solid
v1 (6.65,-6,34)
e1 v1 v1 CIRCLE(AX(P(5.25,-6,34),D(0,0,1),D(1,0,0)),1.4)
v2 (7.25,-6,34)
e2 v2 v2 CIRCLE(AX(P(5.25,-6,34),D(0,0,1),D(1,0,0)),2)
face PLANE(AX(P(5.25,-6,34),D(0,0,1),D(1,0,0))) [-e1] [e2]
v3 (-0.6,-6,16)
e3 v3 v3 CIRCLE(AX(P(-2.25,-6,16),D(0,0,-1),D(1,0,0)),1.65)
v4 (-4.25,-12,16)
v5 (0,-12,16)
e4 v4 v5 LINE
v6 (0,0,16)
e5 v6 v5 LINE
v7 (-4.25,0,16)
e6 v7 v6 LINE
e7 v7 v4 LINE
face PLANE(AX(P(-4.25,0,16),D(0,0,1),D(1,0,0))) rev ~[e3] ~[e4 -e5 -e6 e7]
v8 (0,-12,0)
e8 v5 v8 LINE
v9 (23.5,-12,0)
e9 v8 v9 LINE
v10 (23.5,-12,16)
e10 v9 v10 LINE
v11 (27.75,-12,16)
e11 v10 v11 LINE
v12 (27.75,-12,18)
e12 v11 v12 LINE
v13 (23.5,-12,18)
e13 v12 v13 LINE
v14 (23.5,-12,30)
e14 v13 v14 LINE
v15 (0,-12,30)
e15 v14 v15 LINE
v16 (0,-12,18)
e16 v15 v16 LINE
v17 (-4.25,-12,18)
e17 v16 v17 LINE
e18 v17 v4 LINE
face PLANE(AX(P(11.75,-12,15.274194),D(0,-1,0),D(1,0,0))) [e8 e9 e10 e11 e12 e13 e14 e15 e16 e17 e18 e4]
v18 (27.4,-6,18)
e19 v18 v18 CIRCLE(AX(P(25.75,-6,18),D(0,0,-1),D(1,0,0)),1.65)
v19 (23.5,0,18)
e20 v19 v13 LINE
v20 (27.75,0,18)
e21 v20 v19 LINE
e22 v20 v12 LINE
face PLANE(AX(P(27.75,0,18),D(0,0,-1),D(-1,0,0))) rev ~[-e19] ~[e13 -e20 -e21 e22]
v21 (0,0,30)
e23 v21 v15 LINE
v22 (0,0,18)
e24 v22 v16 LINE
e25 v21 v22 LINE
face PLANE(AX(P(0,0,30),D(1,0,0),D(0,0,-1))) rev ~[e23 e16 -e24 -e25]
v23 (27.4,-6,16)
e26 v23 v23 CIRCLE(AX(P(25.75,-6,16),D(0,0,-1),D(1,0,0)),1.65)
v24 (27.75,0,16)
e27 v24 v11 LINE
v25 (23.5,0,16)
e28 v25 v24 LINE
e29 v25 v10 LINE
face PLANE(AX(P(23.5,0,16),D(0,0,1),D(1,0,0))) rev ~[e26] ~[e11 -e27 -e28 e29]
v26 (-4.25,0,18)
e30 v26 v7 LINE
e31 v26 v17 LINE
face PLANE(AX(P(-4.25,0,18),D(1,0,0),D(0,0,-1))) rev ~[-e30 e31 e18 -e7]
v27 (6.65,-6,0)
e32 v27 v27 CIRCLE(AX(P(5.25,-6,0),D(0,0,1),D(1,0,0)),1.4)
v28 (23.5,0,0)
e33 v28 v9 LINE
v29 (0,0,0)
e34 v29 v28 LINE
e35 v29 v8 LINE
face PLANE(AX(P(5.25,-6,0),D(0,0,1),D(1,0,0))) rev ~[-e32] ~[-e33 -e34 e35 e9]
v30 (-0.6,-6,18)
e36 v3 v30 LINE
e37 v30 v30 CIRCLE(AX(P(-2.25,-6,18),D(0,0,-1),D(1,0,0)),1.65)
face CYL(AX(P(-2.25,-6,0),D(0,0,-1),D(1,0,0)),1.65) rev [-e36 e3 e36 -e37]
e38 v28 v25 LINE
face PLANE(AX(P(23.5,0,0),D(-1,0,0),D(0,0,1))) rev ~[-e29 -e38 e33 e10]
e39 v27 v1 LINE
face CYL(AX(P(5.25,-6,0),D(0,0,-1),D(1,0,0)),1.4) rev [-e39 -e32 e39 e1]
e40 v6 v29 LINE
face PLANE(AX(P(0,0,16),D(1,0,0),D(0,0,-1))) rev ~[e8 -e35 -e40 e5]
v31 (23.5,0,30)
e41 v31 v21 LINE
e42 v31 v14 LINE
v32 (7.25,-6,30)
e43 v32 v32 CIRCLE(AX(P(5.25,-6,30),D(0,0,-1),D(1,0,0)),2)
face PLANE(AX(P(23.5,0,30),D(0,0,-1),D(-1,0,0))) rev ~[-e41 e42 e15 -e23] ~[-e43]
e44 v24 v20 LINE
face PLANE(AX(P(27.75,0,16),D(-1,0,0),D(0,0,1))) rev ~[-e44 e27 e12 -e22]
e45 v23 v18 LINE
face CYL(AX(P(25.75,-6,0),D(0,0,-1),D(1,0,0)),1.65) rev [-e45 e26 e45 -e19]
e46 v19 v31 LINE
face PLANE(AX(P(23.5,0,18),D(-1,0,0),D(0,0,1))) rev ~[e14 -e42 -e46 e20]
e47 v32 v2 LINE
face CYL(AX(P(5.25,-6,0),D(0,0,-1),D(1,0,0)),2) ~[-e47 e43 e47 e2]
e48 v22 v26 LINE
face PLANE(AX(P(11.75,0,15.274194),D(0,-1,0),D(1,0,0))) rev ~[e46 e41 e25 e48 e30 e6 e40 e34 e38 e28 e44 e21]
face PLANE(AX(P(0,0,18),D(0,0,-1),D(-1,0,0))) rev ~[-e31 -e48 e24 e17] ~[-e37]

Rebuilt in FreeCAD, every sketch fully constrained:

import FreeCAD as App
import Part
import Sketcher
from FreeCAD import Vector
Q = App.Units.Quantity


def add_polygon(sketch, points):
    """Adds a closed chain of lines whose ends are joined by coincident constraints."""
    first, n = sketch.GeometryCount, len(points)
    for a, b in zip(points, points[1:] + points[:1]):
        sketch.addGeometry(Part.LineSegment(App.Vector(*a, 0), App.Vector(*b, 0)), False)
    for i in range(n):
        sketch.addConstraint(Sketcher.Constraint("Coincident", first + i, 2, first + (i + 1) % n, 1))

doc = App.newDocument("Part")
body = doc.addObject("PartDesign::Body", "Body")

# Sketch on XZ plane
sketch1 = body.newObject("Sketcher::SketchObject", "Sketch")
sketch1.AttachmentSupport = (doc.getObject("XZ_Plane"), [""])
sketch1.MapMode = "FlatFace"
add_polygon(sketch1, [(0, 0), (23.5, 0), (23.5, 16), (27.8, 16), (27.8, 18), (23.5, 18), (23.5, 30), (0, 30), (0, 18), (-4.2, 18), (-4.2, 16), (0, 16)])  # lines 0-11
sketch1.addConstraint([
    Sketcher.Constraint("Horizontal", 0),
    Sketcher.Constraint("Vertical", 1),
    Sketcher.Constraint("Horizontal", 2),
    Sketcher.Constraint("Vertical", 3),
    Sketcher.Constraint("Horizontal", 4),
    Sketcher.Constraint("Vertical", 5),
    Sketcher.Constraint("Horizontal", 6),
    Sketcher.Constraint("Vertical", 7),
    Sketcher.Constraint("Horizontal", 8),
    Sketcher.Constraint("Vertical", 9),
    Sketcher.Constraint("Horizontal", 10),
    Sketcher.Constraint("Vertical", 11),
    Sketcher.Constraint("Coincident", 11, 2, -1, 1),
    Sketcher.Constraint("PointOnObject", 6, 2, -2),
    Sketcher.Constraint("Horizontal", 4, 2, 7, 2),
    Sketcher.Constraint("Horizontal", 2, 2, 9, 2),
    Sketcher.Constraint("Vertical", 1, 2, 4, 2),
    Sketcher.Constraint("Equal", 4, 8),
    Sketcher.Constraint("DistanceY", 1, 1, 1, 2, Q("16 mm")),
    Sketcher.Constraint("DistanceY", 3, 1, 3, 2, Q("2 mm")),
    Sketcher.Constraint("DistanceY", 5, 1, 5, 2, Q("12 mm")),
    Sketcher.Constraint("DistanceX", 0, 1, 0, 2, Q("23.5 mm")),
    Sketcher.Constraint("DistanceX", 2, 1, 2, 2, Q("4.25 mm")),
])
pad1 = body.newObject("PartDesign::Pad", "Pad")
pad1.Profile = sketch1
pad1.Length = 12

# Sketch on XY plane
sketch2 = body.newObject("Sketcher::SketchObject", "Sketch001")
sketch2.AttachmentSupport = (doc.getObject("XY_Plane"), [""])
sketch2.MapMode = "FlatFace"
sketch2.addGeometry([
    Part.Circle(Vector(-2.2, -6, 0), Vector(0, 0, 1), 1.6),
    Part.Circle(Vector(25.8, -6, 0), Vector(0, 0, 1), 1.6),
], False)
sketch2.addConstraint([
    Sketcher.Constraint("Equal", 0, 1),
    Sketcher.Constraint("Horizontal", 0, 3, 1, 3),
    Sketcher.Constraint("Diameter", 0, Q("3.3 mm")),
    Sketcher.Constraint("DistanceY", 0, 3, -1, 1, Q("6 mm")),
    Sketcher.Constraint("DistanceX", 0, 3, 1, 3, Q("28 mm")),
    Sketcher.Constraint("DistanceX", 0, 3, -1, 1, Q("2.25 mm")),
])
pocket1 = body.newObject("PartDesign::Pocket", "Pocket")
pocket1.Profile = sketch2
pocket1.Length = 50
pocket1.Reversed = True

# Sketch on XY plane
sketch3 = body.newObject("Sketcher::SketchObject", "Sketch002")
sketch3.AttachmentSupport = (doc.getObject("XY_Plane"), [""])
sketch3.MapMode = "FlatFace"
sketch3.addGeometry(Part.Circle(Vector(5.2, -6, 0), Vector(0, 0, 1), 2), False)
sketch3.addConstraint([
    Sketcher.Constraint("Diameter", 0, Q("4 mm")),
    Sketcher.Constraint("DistanceY", 0, 3, -1, 1, Q("6 mm")),
    Sketcher.Constraint("DistanceX", -1, 1, 0, 3, Q("5.25 mm")),
])
pad2 = body.newObject("PartDesign::Pad", "Pad001")
pad2.Profile = sketch3
pad2.Length = 34

# Sketch on XY plane
sketch4 = body.newObject("Sketcher::SketchObject", "Sketch003")
sketch4.AttachmentSupport = (doc.getObject("XY_Plane"), [""])
sketch4.MapMode = "FlatFace"
sketch4.addGeometry(Part.Circle(Vector(5.2, -6, 0), Vector(0, 0, 1), 1.4), False)
sketch4.addConstraint([
    Sketcher.Constraint("Diameter", 0, Q("2.8 mm")),
    Sketcher.Constraint("DistanceY", 0, 3, -1, 1, Q("6 mm")),
    Sketcher.Constraint("DistanceX", -1, 1, 0, 3, Q("5.25 mm")),
])
pocket2 = body.newObject("PartDesign::Pocket", "Pocket001")
pocket2.Profile = sketch4
pocket2.Length = 34
pocket2.Reversed = True

doc.recompute()
